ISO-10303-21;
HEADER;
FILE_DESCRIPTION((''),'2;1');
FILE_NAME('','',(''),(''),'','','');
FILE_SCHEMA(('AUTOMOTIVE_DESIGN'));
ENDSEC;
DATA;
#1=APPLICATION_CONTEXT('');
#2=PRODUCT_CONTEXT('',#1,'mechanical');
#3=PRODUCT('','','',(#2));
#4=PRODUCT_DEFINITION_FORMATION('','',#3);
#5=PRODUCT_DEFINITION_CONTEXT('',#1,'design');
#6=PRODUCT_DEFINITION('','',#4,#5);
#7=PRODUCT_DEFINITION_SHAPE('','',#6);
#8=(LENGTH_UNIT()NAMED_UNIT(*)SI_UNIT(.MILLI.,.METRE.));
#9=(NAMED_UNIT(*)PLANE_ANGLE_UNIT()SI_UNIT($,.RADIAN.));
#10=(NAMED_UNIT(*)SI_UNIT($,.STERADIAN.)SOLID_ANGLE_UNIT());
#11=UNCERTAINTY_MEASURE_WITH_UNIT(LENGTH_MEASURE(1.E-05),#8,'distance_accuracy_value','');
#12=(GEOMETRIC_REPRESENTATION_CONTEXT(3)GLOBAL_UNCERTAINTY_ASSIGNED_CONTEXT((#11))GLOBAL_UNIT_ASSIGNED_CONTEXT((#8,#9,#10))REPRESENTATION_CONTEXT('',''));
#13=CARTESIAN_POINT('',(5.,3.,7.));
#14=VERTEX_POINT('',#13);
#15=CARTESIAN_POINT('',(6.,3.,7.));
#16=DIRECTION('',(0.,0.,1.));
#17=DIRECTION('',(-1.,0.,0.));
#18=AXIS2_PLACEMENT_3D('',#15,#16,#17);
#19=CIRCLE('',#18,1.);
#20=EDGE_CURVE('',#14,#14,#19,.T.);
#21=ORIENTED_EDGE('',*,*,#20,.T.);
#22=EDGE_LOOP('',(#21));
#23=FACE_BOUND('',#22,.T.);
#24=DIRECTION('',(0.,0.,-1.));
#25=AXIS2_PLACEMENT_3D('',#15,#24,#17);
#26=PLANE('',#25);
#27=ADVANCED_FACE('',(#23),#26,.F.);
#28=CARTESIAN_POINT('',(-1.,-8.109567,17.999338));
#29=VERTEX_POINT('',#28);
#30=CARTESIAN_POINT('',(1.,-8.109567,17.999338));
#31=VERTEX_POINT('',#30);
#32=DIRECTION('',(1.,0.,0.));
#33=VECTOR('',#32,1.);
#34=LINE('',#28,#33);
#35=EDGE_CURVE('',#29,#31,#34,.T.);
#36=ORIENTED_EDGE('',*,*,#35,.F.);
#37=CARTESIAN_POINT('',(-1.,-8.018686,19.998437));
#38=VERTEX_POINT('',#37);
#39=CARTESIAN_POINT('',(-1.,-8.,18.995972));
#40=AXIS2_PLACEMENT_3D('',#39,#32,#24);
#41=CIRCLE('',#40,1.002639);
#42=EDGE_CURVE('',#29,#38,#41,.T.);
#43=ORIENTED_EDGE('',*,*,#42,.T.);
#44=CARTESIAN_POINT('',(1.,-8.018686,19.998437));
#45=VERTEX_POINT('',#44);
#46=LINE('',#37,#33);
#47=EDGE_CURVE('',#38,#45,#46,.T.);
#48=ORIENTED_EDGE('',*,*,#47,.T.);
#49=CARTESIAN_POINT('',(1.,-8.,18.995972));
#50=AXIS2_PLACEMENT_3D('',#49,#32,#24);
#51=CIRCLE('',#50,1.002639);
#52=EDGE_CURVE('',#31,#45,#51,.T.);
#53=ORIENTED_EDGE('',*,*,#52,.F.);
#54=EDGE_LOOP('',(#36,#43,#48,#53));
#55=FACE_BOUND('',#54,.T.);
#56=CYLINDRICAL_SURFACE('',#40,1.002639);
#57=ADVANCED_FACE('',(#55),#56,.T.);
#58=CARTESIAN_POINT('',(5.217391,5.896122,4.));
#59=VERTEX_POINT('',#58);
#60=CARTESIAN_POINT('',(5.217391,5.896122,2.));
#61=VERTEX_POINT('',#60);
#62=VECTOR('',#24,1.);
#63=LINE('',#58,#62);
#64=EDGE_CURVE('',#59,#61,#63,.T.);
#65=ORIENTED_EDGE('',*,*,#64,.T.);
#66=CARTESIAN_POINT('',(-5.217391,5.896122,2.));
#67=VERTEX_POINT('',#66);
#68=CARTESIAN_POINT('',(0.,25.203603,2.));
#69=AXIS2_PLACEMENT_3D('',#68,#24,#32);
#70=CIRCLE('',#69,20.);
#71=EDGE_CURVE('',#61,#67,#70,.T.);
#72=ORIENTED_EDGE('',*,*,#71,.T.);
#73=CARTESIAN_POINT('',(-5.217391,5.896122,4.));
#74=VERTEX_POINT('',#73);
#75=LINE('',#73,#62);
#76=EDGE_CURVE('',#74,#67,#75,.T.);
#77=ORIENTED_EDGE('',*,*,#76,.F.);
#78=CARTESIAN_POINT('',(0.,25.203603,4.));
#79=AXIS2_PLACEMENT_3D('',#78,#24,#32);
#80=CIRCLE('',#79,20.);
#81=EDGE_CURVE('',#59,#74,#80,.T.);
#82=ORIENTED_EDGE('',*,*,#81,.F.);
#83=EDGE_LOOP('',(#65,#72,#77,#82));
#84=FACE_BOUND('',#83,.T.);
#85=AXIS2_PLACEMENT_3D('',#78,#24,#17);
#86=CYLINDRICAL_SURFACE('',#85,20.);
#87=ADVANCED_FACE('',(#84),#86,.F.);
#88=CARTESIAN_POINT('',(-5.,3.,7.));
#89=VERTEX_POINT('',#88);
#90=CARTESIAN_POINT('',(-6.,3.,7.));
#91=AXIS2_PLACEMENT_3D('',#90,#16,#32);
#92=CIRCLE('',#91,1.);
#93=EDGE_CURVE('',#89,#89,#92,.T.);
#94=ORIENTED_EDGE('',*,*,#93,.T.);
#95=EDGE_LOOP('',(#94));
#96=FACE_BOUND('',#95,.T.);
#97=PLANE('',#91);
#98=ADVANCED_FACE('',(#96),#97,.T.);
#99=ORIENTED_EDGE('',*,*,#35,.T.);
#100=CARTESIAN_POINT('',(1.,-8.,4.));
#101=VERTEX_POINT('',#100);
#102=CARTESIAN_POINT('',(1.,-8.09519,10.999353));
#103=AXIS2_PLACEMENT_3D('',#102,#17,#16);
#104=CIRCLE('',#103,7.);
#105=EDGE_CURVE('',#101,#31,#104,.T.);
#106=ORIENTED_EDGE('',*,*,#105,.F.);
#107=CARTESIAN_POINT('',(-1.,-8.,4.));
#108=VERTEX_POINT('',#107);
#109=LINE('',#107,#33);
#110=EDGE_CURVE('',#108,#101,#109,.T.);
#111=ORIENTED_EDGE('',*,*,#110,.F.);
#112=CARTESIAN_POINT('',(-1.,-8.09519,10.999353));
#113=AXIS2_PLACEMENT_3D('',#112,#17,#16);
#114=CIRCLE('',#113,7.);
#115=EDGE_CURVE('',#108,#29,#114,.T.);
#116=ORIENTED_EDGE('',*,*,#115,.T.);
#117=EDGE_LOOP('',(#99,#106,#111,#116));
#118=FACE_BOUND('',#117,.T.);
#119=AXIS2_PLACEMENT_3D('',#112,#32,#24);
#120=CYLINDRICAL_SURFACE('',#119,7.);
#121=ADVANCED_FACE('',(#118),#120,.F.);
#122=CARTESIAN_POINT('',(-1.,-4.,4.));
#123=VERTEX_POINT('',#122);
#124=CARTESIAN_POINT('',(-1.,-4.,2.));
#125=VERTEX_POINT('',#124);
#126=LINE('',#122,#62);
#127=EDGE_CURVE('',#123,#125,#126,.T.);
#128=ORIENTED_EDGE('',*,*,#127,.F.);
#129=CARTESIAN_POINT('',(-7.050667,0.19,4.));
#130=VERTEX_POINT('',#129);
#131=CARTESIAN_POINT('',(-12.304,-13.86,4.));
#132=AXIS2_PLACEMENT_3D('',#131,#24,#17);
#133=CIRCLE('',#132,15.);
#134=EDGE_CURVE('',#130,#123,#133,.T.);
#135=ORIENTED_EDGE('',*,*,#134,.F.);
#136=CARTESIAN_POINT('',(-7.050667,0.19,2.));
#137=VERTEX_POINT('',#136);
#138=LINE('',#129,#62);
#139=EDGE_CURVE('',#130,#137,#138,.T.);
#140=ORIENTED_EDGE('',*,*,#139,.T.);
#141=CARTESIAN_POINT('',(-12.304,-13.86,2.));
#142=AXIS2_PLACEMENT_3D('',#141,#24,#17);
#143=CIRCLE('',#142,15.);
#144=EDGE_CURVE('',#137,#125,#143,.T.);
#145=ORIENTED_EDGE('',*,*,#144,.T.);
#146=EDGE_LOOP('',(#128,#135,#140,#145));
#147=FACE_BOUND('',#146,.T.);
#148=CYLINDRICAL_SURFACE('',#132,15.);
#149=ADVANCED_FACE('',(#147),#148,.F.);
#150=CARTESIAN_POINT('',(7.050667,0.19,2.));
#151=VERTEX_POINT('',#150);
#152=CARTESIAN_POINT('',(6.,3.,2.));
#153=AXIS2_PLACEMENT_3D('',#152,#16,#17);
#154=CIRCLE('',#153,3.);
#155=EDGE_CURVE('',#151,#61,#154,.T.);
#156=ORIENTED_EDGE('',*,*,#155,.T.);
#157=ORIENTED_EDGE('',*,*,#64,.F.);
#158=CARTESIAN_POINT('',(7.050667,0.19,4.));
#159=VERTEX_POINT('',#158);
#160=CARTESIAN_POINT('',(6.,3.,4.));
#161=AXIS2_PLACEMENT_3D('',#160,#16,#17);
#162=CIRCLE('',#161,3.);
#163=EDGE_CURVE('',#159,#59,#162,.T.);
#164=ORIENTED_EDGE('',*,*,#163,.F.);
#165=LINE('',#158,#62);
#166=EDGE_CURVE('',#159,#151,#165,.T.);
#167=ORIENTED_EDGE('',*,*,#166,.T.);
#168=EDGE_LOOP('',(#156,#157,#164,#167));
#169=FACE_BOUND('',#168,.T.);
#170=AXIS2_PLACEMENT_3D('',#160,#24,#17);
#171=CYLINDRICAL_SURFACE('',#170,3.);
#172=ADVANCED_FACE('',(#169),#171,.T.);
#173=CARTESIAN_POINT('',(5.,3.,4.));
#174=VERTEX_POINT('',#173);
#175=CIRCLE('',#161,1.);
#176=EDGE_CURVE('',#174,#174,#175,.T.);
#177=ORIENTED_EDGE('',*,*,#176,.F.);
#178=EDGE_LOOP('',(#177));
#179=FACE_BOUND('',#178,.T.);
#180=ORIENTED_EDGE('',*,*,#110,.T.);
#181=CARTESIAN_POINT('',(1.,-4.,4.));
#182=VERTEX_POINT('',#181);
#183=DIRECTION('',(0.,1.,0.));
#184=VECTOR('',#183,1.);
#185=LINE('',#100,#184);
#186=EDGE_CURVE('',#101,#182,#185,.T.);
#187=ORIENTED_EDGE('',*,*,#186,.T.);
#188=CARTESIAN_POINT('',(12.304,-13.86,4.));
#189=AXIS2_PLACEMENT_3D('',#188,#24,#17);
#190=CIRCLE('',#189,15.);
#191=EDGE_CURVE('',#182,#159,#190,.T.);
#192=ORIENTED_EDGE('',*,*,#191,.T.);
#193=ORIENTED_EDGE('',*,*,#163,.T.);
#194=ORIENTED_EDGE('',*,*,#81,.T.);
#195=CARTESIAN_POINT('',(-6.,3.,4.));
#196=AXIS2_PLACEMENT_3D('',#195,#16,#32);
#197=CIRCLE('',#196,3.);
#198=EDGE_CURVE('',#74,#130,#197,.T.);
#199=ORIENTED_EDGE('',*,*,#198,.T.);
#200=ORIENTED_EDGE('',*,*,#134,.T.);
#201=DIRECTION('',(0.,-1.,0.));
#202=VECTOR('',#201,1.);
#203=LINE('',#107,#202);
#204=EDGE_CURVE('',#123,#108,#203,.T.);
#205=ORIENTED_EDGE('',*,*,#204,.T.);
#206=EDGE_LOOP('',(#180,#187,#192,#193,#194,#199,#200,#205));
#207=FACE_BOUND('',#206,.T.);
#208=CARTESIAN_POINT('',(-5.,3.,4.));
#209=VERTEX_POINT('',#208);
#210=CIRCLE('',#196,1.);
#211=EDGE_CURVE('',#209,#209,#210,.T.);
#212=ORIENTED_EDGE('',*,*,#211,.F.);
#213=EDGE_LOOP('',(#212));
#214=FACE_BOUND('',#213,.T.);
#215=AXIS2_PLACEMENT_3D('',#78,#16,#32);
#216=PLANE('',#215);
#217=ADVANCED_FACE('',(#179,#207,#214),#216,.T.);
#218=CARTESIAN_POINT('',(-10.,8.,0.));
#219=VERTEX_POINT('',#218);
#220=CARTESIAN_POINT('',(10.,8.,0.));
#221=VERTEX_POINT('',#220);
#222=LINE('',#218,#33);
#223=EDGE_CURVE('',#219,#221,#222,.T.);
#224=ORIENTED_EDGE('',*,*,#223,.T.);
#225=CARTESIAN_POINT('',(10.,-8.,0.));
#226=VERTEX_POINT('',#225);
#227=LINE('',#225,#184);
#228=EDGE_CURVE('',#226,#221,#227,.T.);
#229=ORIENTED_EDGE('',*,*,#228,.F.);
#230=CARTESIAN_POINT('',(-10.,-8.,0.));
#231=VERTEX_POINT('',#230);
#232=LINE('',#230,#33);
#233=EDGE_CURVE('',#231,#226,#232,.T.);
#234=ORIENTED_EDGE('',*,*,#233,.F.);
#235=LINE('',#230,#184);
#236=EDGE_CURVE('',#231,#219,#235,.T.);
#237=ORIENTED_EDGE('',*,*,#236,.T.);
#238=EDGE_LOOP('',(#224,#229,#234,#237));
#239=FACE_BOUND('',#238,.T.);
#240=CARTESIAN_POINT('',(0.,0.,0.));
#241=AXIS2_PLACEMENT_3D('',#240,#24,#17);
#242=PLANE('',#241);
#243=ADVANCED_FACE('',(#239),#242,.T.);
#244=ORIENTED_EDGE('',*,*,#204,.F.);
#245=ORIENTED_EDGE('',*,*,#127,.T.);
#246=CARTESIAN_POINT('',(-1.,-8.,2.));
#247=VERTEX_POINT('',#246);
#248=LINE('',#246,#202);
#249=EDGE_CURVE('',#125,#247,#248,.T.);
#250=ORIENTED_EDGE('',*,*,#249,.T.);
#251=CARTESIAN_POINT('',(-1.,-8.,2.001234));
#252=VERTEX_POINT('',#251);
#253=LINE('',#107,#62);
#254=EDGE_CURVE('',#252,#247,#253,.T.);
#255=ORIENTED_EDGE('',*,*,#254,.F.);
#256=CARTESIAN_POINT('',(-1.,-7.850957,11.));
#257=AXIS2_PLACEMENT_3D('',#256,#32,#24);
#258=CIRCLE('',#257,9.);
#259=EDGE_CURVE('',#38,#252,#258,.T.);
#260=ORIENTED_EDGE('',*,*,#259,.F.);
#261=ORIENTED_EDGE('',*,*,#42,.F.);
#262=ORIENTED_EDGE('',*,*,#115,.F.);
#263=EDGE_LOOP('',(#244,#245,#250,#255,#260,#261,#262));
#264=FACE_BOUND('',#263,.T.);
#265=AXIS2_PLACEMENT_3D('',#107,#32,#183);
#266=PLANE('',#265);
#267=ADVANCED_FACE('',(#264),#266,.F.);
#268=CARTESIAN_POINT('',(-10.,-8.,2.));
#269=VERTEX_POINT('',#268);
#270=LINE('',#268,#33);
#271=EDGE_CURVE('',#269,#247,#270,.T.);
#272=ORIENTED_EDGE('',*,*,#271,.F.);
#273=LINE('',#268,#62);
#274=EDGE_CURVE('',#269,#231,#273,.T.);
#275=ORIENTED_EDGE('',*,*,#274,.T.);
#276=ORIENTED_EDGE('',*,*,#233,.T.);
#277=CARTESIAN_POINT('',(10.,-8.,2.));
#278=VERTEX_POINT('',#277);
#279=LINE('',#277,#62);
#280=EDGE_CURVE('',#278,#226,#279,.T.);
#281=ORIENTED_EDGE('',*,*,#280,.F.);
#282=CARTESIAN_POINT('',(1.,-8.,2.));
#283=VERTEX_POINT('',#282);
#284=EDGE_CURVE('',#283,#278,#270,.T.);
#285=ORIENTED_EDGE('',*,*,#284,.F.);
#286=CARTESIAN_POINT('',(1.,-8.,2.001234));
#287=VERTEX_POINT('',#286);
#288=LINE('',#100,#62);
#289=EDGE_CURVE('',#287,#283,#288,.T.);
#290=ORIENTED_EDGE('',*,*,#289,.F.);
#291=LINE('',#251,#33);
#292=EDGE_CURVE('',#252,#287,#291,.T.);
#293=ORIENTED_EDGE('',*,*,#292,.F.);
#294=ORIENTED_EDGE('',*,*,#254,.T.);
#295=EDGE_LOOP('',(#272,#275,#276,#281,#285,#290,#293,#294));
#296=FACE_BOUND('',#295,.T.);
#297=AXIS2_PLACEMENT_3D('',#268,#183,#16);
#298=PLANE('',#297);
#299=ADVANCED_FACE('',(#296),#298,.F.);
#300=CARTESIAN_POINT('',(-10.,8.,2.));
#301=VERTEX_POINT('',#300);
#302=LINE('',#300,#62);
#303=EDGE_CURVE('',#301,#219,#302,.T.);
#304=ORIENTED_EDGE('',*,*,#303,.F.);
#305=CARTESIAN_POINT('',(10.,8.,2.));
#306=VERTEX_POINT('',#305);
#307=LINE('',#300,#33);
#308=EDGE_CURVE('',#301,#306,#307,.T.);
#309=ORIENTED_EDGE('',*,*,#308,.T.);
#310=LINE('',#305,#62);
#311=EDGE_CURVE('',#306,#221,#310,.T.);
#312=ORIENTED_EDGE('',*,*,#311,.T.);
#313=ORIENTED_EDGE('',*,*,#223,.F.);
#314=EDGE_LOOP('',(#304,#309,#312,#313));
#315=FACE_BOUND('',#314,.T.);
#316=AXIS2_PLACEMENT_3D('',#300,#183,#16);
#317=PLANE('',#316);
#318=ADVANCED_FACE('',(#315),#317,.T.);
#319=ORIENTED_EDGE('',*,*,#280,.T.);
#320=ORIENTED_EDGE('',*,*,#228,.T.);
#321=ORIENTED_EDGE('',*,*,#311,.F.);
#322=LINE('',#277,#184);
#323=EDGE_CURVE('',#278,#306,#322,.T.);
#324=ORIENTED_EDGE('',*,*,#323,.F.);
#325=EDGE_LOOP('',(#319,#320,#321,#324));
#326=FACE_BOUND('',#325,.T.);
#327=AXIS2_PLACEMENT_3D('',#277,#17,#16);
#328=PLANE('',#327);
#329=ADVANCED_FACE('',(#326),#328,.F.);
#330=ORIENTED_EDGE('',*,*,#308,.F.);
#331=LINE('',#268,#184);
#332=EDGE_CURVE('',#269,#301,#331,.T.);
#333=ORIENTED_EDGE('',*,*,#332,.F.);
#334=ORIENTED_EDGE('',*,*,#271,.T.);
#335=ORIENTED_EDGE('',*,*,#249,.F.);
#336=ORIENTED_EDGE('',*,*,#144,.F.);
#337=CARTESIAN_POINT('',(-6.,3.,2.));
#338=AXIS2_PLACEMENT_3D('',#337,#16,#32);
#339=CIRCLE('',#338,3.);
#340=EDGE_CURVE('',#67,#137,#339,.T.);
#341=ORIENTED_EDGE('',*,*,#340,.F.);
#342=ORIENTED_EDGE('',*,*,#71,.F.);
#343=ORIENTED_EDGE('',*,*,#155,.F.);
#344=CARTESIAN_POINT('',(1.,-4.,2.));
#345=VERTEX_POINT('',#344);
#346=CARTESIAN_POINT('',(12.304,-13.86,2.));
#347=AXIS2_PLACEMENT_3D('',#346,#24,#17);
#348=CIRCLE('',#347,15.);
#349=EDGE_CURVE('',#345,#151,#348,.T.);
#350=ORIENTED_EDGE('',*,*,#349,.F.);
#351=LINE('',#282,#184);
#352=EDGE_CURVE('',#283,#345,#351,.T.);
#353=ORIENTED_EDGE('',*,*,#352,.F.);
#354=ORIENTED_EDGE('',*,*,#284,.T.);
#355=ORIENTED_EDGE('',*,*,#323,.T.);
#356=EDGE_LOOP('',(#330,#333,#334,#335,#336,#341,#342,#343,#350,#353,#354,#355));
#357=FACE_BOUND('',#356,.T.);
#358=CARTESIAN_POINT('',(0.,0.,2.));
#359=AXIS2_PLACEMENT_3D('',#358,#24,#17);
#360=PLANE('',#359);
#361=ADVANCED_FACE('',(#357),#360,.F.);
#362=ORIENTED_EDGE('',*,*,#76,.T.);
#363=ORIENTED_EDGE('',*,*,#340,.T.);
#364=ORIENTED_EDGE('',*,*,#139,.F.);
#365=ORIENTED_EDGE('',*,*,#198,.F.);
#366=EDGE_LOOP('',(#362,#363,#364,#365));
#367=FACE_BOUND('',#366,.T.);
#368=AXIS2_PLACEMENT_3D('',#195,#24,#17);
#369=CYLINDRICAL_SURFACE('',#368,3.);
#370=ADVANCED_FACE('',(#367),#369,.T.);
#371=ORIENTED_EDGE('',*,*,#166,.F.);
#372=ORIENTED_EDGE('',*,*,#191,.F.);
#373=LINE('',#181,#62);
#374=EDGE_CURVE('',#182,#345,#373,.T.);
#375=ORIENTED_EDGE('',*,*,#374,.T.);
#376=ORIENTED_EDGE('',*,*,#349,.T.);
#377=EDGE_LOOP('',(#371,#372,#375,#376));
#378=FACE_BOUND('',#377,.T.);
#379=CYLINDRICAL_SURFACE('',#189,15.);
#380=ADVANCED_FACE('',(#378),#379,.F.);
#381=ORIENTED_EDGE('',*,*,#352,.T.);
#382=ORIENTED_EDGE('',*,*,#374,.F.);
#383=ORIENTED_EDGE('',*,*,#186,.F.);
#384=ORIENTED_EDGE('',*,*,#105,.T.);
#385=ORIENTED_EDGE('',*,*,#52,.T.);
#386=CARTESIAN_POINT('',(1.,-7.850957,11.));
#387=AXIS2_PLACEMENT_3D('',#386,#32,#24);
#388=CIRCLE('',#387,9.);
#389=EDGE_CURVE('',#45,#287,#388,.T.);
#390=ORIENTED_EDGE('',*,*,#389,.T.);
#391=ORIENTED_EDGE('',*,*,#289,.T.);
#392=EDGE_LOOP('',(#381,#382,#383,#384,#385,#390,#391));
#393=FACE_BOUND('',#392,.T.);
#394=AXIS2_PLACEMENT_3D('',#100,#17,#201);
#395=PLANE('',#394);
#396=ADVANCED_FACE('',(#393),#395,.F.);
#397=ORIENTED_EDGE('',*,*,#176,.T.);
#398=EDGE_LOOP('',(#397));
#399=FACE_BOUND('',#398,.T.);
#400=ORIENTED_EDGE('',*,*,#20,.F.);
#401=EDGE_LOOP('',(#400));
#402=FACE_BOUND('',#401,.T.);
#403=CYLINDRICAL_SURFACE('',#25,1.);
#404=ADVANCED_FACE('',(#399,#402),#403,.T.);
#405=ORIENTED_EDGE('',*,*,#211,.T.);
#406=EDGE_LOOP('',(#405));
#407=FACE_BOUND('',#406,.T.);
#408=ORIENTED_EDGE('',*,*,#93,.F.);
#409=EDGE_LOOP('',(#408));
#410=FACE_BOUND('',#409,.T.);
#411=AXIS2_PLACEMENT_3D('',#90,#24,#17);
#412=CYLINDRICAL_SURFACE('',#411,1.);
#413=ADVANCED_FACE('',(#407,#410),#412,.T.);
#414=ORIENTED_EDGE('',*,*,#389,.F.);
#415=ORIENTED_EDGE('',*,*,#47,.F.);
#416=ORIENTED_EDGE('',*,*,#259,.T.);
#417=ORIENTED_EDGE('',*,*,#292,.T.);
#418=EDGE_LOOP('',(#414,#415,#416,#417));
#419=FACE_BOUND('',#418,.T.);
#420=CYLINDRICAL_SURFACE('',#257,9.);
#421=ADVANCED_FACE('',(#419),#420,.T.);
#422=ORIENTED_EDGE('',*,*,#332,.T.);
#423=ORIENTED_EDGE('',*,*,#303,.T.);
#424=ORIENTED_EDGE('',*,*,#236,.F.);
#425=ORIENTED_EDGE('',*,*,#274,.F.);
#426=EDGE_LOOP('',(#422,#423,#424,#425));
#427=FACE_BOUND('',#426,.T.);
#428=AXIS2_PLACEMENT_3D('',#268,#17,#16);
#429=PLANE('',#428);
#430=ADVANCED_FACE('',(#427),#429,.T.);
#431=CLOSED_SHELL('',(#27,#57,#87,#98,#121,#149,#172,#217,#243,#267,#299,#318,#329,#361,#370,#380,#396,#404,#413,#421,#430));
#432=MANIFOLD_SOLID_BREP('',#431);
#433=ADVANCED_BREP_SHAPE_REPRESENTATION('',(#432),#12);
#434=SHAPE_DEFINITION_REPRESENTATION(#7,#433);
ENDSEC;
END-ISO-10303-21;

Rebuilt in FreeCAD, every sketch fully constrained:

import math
import FreeCAD as App
import Part
import Sketcher
from FreeCAD import Vector
Q = App.Units.Quantity


def add_polygon(sketch, points):
    """Adds a closed chain of lines whose ends are joined by coincident constraints."""
    first, n = sketch.GeometryCount, len(points)
    for a, b in zip(points, points[1:] + points[:1]):
        sketch.addGeometry(Part.LineSegment(App.Vector(*a, 0), App.Vector(*b, 0)), False)
    for i in range(n):
        sketch.addConstraint(Sketcher.Constraint("Coincident", first + i, 2, first + (i + 1) % n, 1))

doc = App.newDocument("Part")
body = doc.addObject("PartDesign::Body", "Body")

# Sketch on XY plane
sketch1 = body.newObject("Sketcher::SketchObject", "Sketch")
sketch1.AttachmentSupport = (doc.getObject("XY_Plane"), [""])
sketch1.MapMode = "FlatFace"
add_polygon(sketch1, [(-10, 8), (-10, -8), (10, -8), (10, 8)])  # lines 0-3
sketch1.addConstraint([
    Sketcher.Constraint("Vertical", 0),
    Sketcher.Constraint("Horizontal", 1),
    Sketcher.Constraint("Vertical", 2),
    Sketcher.Constraint("Horizontal", 3),
    Sketcher.Constraint("Symmetric", 0, 2, 2, 2, -1, 1),
    Sketcher.Constraint("DistanceX", 1, 1, 1, 2, Q("20 mm")),
    Sketcher.Constraint("DistanceY", 0, 2, 0, 1, Q("16 mm")),
])
pad1 = body.newObject("PartDesign::Pad", "Pad")
pad1.Profile = sketch1
pad1.Length = 2

# Sketch on XY plane
sketch2 = body.newObject("Sketcher::SketchObject", "Sketch001")
sketch2.AttachmentSupport = (doc.getObject("XY_Plane"), [""])
sketch2.MapMode = "FlatFace"
sketch2.AttachmentOffset = App.Placement(Vector(0, 0, 2), App.Rotation())
sketch2.addGeometry([
    Part.LineSegment(Vector(1, -8, 0), Vector(1, -4, 0)),  # 0
    Part.ArcOfCircle(Part.Circle(Vector(12.3, -13.9, 0), Vector(0, 0, 1), 15), math.radians(111), math.radians(139)),  # 1
    Part.ArcOfCircle(Part.Circle(Vector(6, 3, 0), Vector(0, 0, 1), 3), math.radians(-69), math.radians(105)),  # 2
    Part.ArcOfCircle(Part.Circle(Vector(0, 25.2, 0), Vector(0, 0, 1), 20), math.radians(-105), math.radians(-75)),  # 3
    Part.ArcOfCircle(Part.Circle(Vector(-6, 3, 0), Vector(0, 0, 1), 3), math.radians(75), math.radians(249)),  # 4
    Part.ArcOfCircle(Part.Circle(Vector(-12.3, -13.9, 0), Vector(0, 0, 1), 15), math.radians(41), math.radians(69)),  # 5
    Part.LineSegment(Vector(-1, -4, 0), Vector(-1, -8, 0)),  # 6
    Part.LineSegment(Vector(-1, -8, 0), Vector(1, -8, 0)),  # 7
], False)
sketch2.addConstraint([
    Sketcher.Constraint("Coincident", 0, 2, 1, 2),
    Sketcher.Constraint("Tangent", 1, 1, 2, 1),
    Sketcher.Constraint("Tangent", 2, 2, 3, 2),
    Sketcher.Constraint("Tangent", 3, 1, 4, 1),
    Sketcher.Constraint("Tangent", 4, 2, 5, 2),
    Sketcher.Constraint("Coincident", 5, 1, 6, 1),
    Sketcher.Constraint("Coincident", 6, 2, 7, 1),
    Sketcher.Constraint("Coincident", 7, 2, 0, 1),
    Sketcher.Constraint("Vertical", 0),
    Sketcher.Constraint("Vertical", 6),
    Sketcher.Constraint("Horizontal", 7),
    Sketcher.Constraint("Equal", 2, 4),
    Sketcher.Constraint("Equal", 1, 5),
    Sketcher.Constraint("Symmetric", 2, 3, 4, 3, -2),
    Sketcher.Constraint("Symmetric", 0, 2, 5, 1, -2),
    Sketcher.Constraint("Radius", 1, Q("15 mm")),
    Sketcher.Constraint("Radius", 2, Q("3 mm")),
    Sketcher.Constraint("Radius", 3, Q("20 mm")),
    Sketcher.Constraint("DistanceX", 7, 1, 7, 2, Q("2 mm")),
    Sketcher.Constraint("DistanceY", 0, 1, 0, 2, Q("4 mm")),
    Sketcher.Constraint("DistanceX", -1, 1, 2, 3, Q("6 mm")),
    Sketcher.Constraint("DistanceY", -1, 1, 2, 3, Q("3 mm")),
    Sketcher.Constraint("DistanceY", 0, 2, -1, 1, Q("4 mm")),
])
pad2 = body.newObject("PartDesign::Pad", "Pad001")
pad2.Profile = sketch2
pad2.Length = 2

# Sketch on XY plane
sketch3 = body.newObject("Sketcher::SketchObject", "Sketch002")
sketch3.AttachmentSupport = (doc.getObject("XY_Plane"), [""])
sketch3.MapMode = "FlatFace"
sketch3.AttachmentOffset = App.Placement(Vector(0, 0, 4), App.Rotation())
sketch3.addGeometry([
    Part.Circle(Vector(-6, 3, 0), Vector(0, 0, 1), 1),
    Part.Circle(Vector(6, 3, 0), Vector(0, 0, 1), 1),
], False)
sketch3.addConstraint([
    Sketcher.Constraint("Equal", 0, 1),
    Sketcher.Constraint("Symmetric", 0, 3, 1, 3, -2),
    Sketcher.Constraint("Diameter", 0, Q("2 mm")),
    Sketcher.Constraint("DistanceX", 0, 3, -1, 1, Q("6 mm")),
    Sketcher.Constraint("DistanceY", -1, 1, 0, 3, Q("3 mm")),
])
pad3 = body.newObject("PartDesign::Pad", "Pad002")
pad3.Profile = sketch3
pad3.Length = 3

# Sketch on YZ plane
sketch4 = body.newObject("Sketcher::SketchObject", "Sketch003")
sketch4.AttachmentSupport = (doc.getObject("YZ_Plane"), [""])
sketch4.MapMode = "FlatFace"
sketch4.addGeometry([
    Part.LineSegment(Vector(-8, 2, 0), Vector(-8, 4, 0)),
    Part.ArcOfCircle(Part.Circle(Vector(-8.1, 11, 0), Vector(0, 0, 1), 7), math.radians(90), math.radians(271)),
    Part.ArcOfCircle(Part.Circle(Vector(-8, 19, 0), Vector(0, 0, 1), 1), math.radians(-96), math.radians(91)),
    Part.ArcOfCircle(Part.Circle(Vector(-7.9, 11, 0), Vector(0, 0, 1), 9), math.radians(91), math.radians(269)),
], False)
sketch4.addConstraint([
    Sketcher.Constraint("Coincident", 0, 2, 1, 2),
    Sketcher.Constraint("Coincident", 1, 1, 2, 1),
    Sketcher.Constraint("Tangent", 2, 2, 3, 1),
    Sketcher.Constraint("Coincident", 3, 2, 0, 1),
    Sketcher.Constraint("Vertical", 0),
    Sketcher.Constraint("Vertical", 2, 3, 0, 2),
    Sketcher.Constraint("Radius", 1, Q("7 mm")),
    Sketcher.Constraint("Radius", 3, Q("9 mm")),
    Sketcher.Constraint("DistanceX", 2, 3, -1, 1, Q("8 mm")),
    Sketcher.Constraint("DistanceY", -1, 1, 3, 3, Q("11 mm")),
    Sketcher.Constraint("DistanceY", -1, 1, 0, 2, Q("4 mm")),
    Sketcher.Constraint("Radius", 2, Q("1.002639 mm")),
    Sketcher.Constraint("DistanceY", 1, 1, 2, 2, Q("1.999099 mm")),
    Sketcher.Constraint("DistanceY", 0, 1, 0, 2, Q("1.998766 mm")),
])
pad4 = body.newObject("PartDesign::Pad", "Pad003")
pad4.Profile = sketch4
pad4.Type = "TwoLengths"
pad4.Length = 1
pad4.Length2 = 1

doc.recompute()
